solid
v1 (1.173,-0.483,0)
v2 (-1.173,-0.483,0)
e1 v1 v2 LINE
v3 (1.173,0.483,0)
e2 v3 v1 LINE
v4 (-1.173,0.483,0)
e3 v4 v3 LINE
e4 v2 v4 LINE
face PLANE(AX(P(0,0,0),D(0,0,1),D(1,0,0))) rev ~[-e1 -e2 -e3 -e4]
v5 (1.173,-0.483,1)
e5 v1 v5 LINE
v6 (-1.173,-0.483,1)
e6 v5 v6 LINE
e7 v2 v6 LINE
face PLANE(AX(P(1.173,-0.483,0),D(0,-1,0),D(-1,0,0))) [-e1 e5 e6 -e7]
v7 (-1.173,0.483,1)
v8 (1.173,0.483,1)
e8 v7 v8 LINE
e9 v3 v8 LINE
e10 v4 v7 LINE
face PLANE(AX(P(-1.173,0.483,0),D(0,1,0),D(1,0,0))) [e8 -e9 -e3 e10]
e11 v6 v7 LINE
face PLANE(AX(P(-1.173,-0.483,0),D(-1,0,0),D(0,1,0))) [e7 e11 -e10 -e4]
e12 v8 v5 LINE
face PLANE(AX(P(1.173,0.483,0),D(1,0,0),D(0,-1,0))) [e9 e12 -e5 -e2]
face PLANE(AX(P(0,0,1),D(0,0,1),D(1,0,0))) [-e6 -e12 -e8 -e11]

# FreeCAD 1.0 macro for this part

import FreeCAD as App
import Part
import Sketcher

doc = App.newDocument("Part")
params = doc.addObject("Spreadsheet::Sheet", "Params")
for row, (alias, value) in enumerate([
    ("pad1_length", "1 mm"),
], start=1):
    params.set(f"A{row}", alias)
    params.set(f"B{row}", "=" + value)
    params.setAlias(f"B{row}", alias)

body = doc.addObject("PartDesign::Body", "Body")

sketch1 = body.newObject("Sketcher::SketchObject", "Sketch")
sketch1.AttachmentSupport = (doc.getObject("XY_Plane"), [""])
sketch1.MapMode = "FlatFace"
sketch1.addGeometry(Part.LineSegment(App.Vector(1.2, 0.5, 0), App.Vector(-1.2, 0.5, 0)), False)
sketch1.addGeometry(Part.LineSegment(App.Vector(-1.2, 0.5, 0), App.Vector(-1.2, -0.5, 0)), False)
sketch1.addGeometry(Part.LineSegment(App.Vector(-1.2, -0.5, 0), App.Vector(1.2, -0.5, 0)), False)
sketch1.addGeometry(Part.LineSegment(App.Vector(1.2, -0.5, 0), App.Vector(1.2, 0.5, 0)), False)
sketch1.addConstraint(Sketcher.Constraint("Coincident", 0, 2, 1, 1))
sketch1.addConstraint(Sketcher.Constraint("Coincident", 1, 2, 2, 1))
sketch1.addConstraint(Sketcher.Constraint("Coincident", 2, 2, 3, 1))
sketch1.addConstraint(Sketcher.Constraint("Coincident", 3, 2, 0, 1))
sketch1.addConstraint(Sketcher.Constraint("Horizontal", 0))
sketch1.addConstraint(Sketcher.Constraint("Vertical", 1))
sketch1.addConstraint(Sketcher.Constraint("Horizontal", 2))
sketch1.addConstraint(Sketcher.Constraint("Vertical", 3))
sketch1.addConstraint(Sketcher.Constraint("Symmetric", 0, 2, 2, 2, -1, 1))
sketch1.addConstraint(Sketcher.Constraint("DistanceX", 0, 2, 0, 1, 2.346))
sketch1.addConstraint(Sketcher.Constraint("DistanceY", 1, 2, 1, 1, 0.966))
pad1 = body.newObject("PartDesign::Pad", "Pad")
pad1.Profile = sketch1
pad1.setExpression("Length", "Params.pad1_length")

doc.recompute()
